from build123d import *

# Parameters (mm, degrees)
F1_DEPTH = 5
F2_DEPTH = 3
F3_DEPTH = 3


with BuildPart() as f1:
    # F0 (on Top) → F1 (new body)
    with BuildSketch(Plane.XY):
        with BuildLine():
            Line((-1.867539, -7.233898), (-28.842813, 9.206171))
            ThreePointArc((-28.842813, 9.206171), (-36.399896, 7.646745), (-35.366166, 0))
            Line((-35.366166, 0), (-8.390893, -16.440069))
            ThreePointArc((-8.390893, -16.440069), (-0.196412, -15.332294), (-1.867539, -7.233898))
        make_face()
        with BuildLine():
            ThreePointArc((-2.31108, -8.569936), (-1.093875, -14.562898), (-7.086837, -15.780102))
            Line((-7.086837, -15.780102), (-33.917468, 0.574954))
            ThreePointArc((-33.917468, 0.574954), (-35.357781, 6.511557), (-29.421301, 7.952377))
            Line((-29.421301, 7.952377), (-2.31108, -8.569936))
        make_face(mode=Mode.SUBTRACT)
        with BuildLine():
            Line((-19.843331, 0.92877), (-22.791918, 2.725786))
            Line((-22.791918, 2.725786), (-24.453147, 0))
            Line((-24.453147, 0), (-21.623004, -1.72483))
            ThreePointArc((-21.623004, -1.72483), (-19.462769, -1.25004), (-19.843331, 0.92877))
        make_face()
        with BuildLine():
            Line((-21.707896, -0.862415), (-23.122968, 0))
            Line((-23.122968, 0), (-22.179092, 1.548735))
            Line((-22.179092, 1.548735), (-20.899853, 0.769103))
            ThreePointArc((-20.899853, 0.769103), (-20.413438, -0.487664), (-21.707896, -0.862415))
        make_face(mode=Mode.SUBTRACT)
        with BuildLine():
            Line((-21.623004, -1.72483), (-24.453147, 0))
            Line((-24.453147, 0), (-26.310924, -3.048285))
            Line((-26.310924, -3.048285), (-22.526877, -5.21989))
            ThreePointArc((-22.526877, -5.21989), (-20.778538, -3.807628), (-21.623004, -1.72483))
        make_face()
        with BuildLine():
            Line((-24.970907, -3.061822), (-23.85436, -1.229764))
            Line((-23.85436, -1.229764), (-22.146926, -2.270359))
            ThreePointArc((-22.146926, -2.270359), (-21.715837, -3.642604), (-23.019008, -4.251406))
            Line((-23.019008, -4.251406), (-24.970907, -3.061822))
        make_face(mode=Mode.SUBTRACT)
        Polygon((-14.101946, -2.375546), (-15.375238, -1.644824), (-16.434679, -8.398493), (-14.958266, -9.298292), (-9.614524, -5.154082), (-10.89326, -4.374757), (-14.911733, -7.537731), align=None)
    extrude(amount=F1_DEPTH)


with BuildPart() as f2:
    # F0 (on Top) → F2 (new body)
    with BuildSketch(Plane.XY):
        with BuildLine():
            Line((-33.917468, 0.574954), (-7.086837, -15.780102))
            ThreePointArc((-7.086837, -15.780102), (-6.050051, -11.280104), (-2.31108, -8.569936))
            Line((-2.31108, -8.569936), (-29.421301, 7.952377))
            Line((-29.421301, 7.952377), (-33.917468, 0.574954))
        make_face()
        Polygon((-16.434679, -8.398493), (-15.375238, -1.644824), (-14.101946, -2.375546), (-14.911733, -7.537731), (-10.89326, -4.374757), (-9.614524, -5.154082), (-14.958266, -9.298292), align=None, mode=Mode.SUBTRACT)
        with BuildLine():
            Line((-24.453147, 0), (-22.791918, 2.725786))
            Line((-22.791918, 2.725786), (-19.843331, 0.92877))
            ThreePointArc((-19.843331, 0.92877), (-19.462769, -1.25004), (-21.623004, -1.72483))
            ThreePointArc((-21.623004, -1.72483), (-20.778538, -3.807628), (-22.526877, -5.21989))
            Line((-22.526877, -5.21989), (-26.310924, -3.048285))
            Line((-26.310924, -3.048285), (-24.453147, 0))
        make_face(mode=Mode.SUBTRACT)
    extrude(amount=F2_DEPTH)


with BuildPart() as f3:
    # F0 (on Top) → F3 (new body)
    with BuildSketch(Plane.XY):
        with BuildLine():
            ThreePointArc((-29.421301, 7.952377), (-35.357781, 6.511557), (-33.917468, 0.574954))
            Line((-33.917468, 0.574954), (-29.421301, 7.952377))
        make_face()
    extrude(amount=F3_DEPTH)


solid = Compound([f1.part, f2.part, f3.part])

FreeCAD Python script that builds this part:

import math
import FreeCAD as App
import Part
import Sketcher
from FreeCAD import Vector
Q = App.Units.Quantity

doc = App.newDocument("Part")
params = doc.addObject("Spreadsheet::Sheet", "Params")
for row, (alias, value) in enumerate([
    ("pad1_length", "5 mm"),
    ("pad2_length", "3 mm"),
    ("pad3_length", "3 mm"),
], start=1):
    params.set(f"A{row}", alias)
    params.set(f"B{row}", "=" + value)
    params.setAlias(f"B{row}", alias)

body = doc.addObject("PartDesign::Body", "Body")
body.AllowCompound = True

# Sketch on XY plane
sketch1 = body.newObject("Sketcher::SketchObject", "Sketch")
sketch1.AttachmentSupport = (doc.getObject("XY_Plane"), [""])
sketch1.MapMode = "FlatFace"
sketch1.addGeometry([
    Part.LineSegment(Vector(-1.867539, -7.233898, 0), Vector(-28.842813, 9.206171, 0)),  # 0
    Part.ArcOfCircle(Part.Circle(Vector(-31.785791, 4.37726, 0), Vector(0, 0, 1), 5.655042), math.radians(58.639796), math.radians(230.71859)),  # 1
    Part.LineSegment(Vector(-35.366166, 0, 0), Vector(-8.390893, -16.440069, 0)),  # 2
    Part.ArcOfCircle(Part.Circle(Vector(-4.810517, -12.062809, 0), Vector(0, 0, 1), 5.655042), math.radians(-129.281418), math.radians(58.639795)),  # 3
    Part.LineSegment(Vector(-29.421301, 7.952377, 0), Vector(-2.31108, -8.569936, 0)),  # 4
    Part.ArcOfCircle(Part.Circle(Vector(-4.698958, -12.175019, 0), Vector(0, 0, 1), 4.324186), math.radians(-123.519081), math.radians(56.480937)),  # 5
    Part.LineSegment(Vector(-7.086837, -15.780102, 0), Vector(-33.917468, 0.574954, 0)),  # 6
    Part.ArcOfCircle(Part.Circle(Vector(-31.669069, 4.263474, 0), Vector(0, 0, 1), 4.319777), math.radians(58.644694), math.radians(238.634908)),  # 7
    Part.LineSegment(Vector(-19.843331, 0.92877, 0), Vector(-22.791918, 2.725786, 0)),  # 8
    Part.LineSegment(Vector(-22.791918, 2.725786, 0), Vector(-24.453147, 0, 0)),  # 9
    Part.LineSegment(Vector(-24.453147, 0, 0), Vector(-26.310924, -3.048285, 0)),  # 10
    Part.LineSegment(Vector(-26.310924, -3.048285, 0), Vector(-22.526877, -5.21989, 0)),  # 11
    Part.ArcOfCircle(Part.Circle(Vector(-22.604561, -3.335393, 0), Vector(0, 0, 1), 1.886098), math.radians(-87.63946), math.radians(58.639797)),  # 12
    Part.ArcOfCircle(Part.Circle(Vector(-20.790821, -0.359364, 0), Vector(0, 0, 1), 1.59907), math.radians(-121.360207), math.radians(53.663567)),  # 13
    Part.LineSegment(Vector(-23.019008, -4.251406, 0), Vector(-24.970907, -3.061822, 0)),  # 14
    Part.LineSegment(Vector(-24.970907, -3.061822, 0), Vector(-23.85436, -1.229764, 0)),  # 15
    Part.LineSegment(Vector(-23.85436, -1.229764, 0), Vector(-22.146926, -2.270359, 0)),  # 16
    Part.ArcOfCircle(Part.Circle(Vector(-22.71514, -3.202698, 0), Vector(0, 0, 1), 1.091844), math.radians(-106.159191), math.radians(58.639785)),  # 17
    Part.ArcOfCircle(Part.Circle(Vector(-21.232328, -0.082091, 0), Vector(0, 0, 1), 0.913822), math.radians(-121.360182), math.radians(68.664453)),  # 18
    Part.LineSegment(Vector(-21.707896, -0.862415, 0), Vector(-23.122968, 0, 0)),  # 19
    Part.LineSegment(Vector(-23.122968, 0, 0), Vector(-22.179092, 1.548735, 0)),  # 20
    Part.LineSegment(Vector(-22.179092, 1.548735, 0), Vector(-20.899853, 0.769103, 0)),  # 21
    Part.LineSegment(Vector(-14.101946, -2.375546, 0), Vector(-15.375238, -1.644824, 0)),  # 22
    Part.LineSegment(Vector(-15.375238, -1.644824, 0), Vector(-16.434679, -8.398493, 0)),  # 23
    Part.LineSegment(Vector(-16.434679, -8.398493, 0), Vector(-14.958266, -9.298292, 0)),  # 24
    Part.LineSegment(Vector(-14.958266, -9.298292, 0), Vector(-9.614524, -5.154082, 0)),  # 25
    Part.LineSegment(Vector(-9.614524, -5.154082, 0), Vector(-10.89326, -4.374757, 0)),  # 26
    Part.LineSegment(Vector(-10.89326, -4.374757, 0), Vector(-14.911733, -7.537731, 0)),  # 27
    Part.LineSegment(Vector(-14.911733, -7.537731, 0), Vector(-14.101946, -2.375546, 0)),  # 28
], False)
sketch1.addConstraint([
    Sketcher.Constraint("Coincident", 0, 2, 1, 1),
    Sketcher.Constraint("Coincident", 1, 2, 2, 1),
    Sketcher.Constraint("Coincident", 2, 2, 3, 1),
    Sketcher.Constraint("Coincident", 3, 2, 0, 1),
    Sketcher.Constraint("Coincident", 4, 2, 5, 2),
    Sketcher.Constraint("Coincident", 5, 1, 6, 1),
    Sketcher.Constraint("Coincident", 6, 2, 7, 2),
    Sketcher.Constraint("Coincident", 7, 1, 4, 1),
    Sketcher.Constraint("Coincident", 8, 2, 9, 1),
    Sketcher.Constraint("Coincident", 9, 2, 10, 1),
    Sketcher.Constraint("Coincident", 10, 2, 11, 1),
    Sketcher.Constraint("Coincident", 11, 2, 12, 1),
    Sketcher.Constraint("Coincident", 12, 2, 13, 1),
    Sketcher.Constraint("Coincident", 13, 2, 8, 1),
    Sketcher.Constraint("Coincident", 14, 2, 15, 1),
    Sketcher.Constraint("Coincident", 15, 2, 16, 1),
    Sketcher.Constraint("Coincident", 16, 2, 17, 2),
    Sketcher.Constraint("Coincident", 17, 1, 14, 1),
    Sketcher.Constraint("Coincident", 18, 1, 19, 1),
    Sketcher.Constraint("Coincident", 19, 2, 20, 1),
    Sketcher.Constraint("Coincident", 20, 2, 21, 1),
    Sketcher.Constraint("Coincident", 21, 2, 18, 2),
    Sketcher.Constraint("Coincident", 22, 2, 23, 1),
    Sketcher.Constraint("Coincident", 23, 2, 24, 1),
    Sketcher.Constraint("Coincident", 24, 2, 25, 1),
    Sketcher.Constraint("Coincident", 25, 2, 26, 1),
    Sketcher.Constraint("Coincident", 26, 2, 27, 1),
    Sketcher.Constraint("Coincident", 27, 2, 28, 1),
    Sketcher.Constraint("Coincident", 28, 2, 22, 1),
    Sketcher.Constraint("PointOnObject", 1, 2, -1),
    Sketcher.Constraint("PointOnObject", 9, 2, -1),
    Sketcher.Constraint("PointOnObject", 19, 2, -1),
    Sketcher.Constraint("Radius", 1, Q("5.655042 mm")),
    Sketcher.Constraint("Radius", 3, Q("5.655042 mm")),
    Sketcher.Constraint("Radius", 13, Q("1.59907 mm")),
    Sketcher.Constraint("Radius", 18, Q("0.913822 mm")),
    Sketcher.Constraint("Radius", 5, Q("4.324186 mm")),
    Sketcher.Constraint("Radius", 7, Q("4.319777 mm")),
    Sketcher.Constraint("Radius", 12, Q("1.886098 mm")),
    Sketcher.Constraint("Radius", 17, Q("1.091844 mm")),
    Sketcher.Constraint("Distance", 11, Q("4.362898 mm")),
    Sketcher.Constraint("Distance", 25, Q("6.7624 mm")),
    Sketcher.Constraint("DistanceY", 17, 3, -1, 1, Q("3.202698 mm")),
    Sketcher.Constraint("DistanceY", 3, 2, -1, 1, Q("7.233898 mm")),
    Sketcher.Constraint("DistanceY", 5, 1, -1, 1, Q("15.780102 mm")),
    Sketcher.Constraint("DistanceX", 7, 1, -1, 1, Q("29.421301 mm")),
    Sketcher.Constraint("DistanceY", 12, 3, 18, 3, Q("3.253302 mm")),
    Sketcher.Constraint("DistanceX", 6, 2, 7, 3, Q("2.248399 mm")),
    Sketcher.Constraint("DistanceY", 11, 2, 18, 3, Q("5.137799 mm")),
    Sketcher.Constraint("DistanceY", 12, 2, 13, 2, Q("2.6536 mm")),
    Sketcher.Constraint("DistanceX", 15, 2, 12, 3, Q("1.249799 mm")),
    Sketcher.Constraint("DistanceX", 14, 2, 17, 1, Q("1.951899 mm")),
    Sketcher.Constraint("DistanceY", 13, 3, 20, 2, Q("1.908099 mm")),
    Sketcher.Constraint("DistanceY", 23, 2, 12, 3, Q("5.0631 mm")),
    Sketcher.Constraint("DistanceY", 24, 2, 23, 2, Q("0.899799 mm")),
    Sketcher.Constraint("Distance", 0, Q("31.590209 mm")),
    Sketcher.Constraint("Distance", 14, Q("2.28583 mm")),
    Sketcher.Constraint("Distance", 21, Q("1.498092 mm")),
    Sketcher.Constraint("Distance", 22, Q("1.468069 mm")),
    Sketcher.Constraint("Distance", 23, Q("6.836261 mm")),
    Sketcher.Constraint("DistanceX", 1, 3, -1, 1, Q("31.785791 mm")),
    Sketcher.Constraint("DistanceY", -1, 1, 1, 3, Q("4.37726 mm")),
    Sketcher.Constraint("DistanceY", 3, 3, -1, 1, Q("12.062809 mm")),
    Sketcher.Constraint("DistanceY", 5, 3, -1, 1, Q("12.175019 mm")),
    Sketcher.Constraint("DistanceX", 7, 3, -1, 1, Q("31.669069 mm")),
    Sketcher.Constraint("DistanceX", 12, 3, -1, 1, Q("22.604561 mm")),
    Sketcher.Constraint("DistanceX", 13, 3, -1, 1, Q("20.790821 mm")),
    Sketcher.Constraint("DistanceX", 17, 3, -1, 1, Q("22.71514 mm")),
    Sketcher.Constraint("DistanceX", 18, 3, -1, 1, Q("21.232328 mm")),
    Sketcher.Constraint("DistanceY", 18, 3, -1, 1, Q("0.082091 mm")),
    Sketcher.Constraint("DistanceY", -1, 1, 0, 2, Q("9.206171 mm")),
    Sketcher.Constraint("DistanceY", 2, 2, -1, 1, Q("16.440069 mm")),
    Sketcher.Constraint("DistanceX", 4, 2, -1, 1, Q("2.31108 mm")),
    Sketcher.Constraint("DistanceY", 12, 2, -1, 1, Q("1.72483 mm")),
    Sketcher.Constraint("DistanceY", 14, 2, -1, 1, Q("3.061822 mm")),
    Sketcher.Constraint("DistanceY", 16, 2, -1, 1, Q("2.270359 mm")),
    Sketcher.Constraint("DistanceX", 19, 2, -1, 1, Q("23.122968 mm")),
    Sketcher.Constraint("DistanceX", 23, 2, -1, 1, Q("16.434679 mm")),
    Sketcher.Constraint("DistanceY", 25, 2, -1, 1, Q("5.154082 mm")),
    Sketcher.Constraint("DistanceX", 26, 2, -1, 1, Q("10.89326 mm")),
    Sketcher.Constraint("DistanceY", 27, 2, -1, 1, Q("7.537731 mm")),
    Sketcher.Constraint("DistanceX", 3, 3, 5, 3, Q("0.111559 mm")),
    Sketcher.Constraint("DistanceY", 17, 3, 7, 3, Q("7.466172 mm")),
    Sketcher.Constraint("DistanceX", 8, 2, 18, 3, Q("1.55959 mm")),
    Sketcher.Constraint("DistanceY", 13, 3, 8, 2, Q("3.08515 mm")),
    Sketcher.Constraint("DistanceX", 9, 2, 8, 2, Q("1.661229 mm")),
    Sketcher.Constraint("DistanceY", 10, 2, 13, 3, Q("2.688921 mm")),
    Sketcher.Constraint("DistanceY", 12, 3, 15, 2, Q("2.105629 mm")),
    Sketcher.Constraint("DistanceX", 18, 1, 12, 2, Q("0.084892 mm")),
    Sketcher.Constraint("DistanceX", 20, 2, 13, 3, Q("1.388271 mm")),
    Sketcher.Constraint("DistanceY", 22, 2, 13, 3, Q("1.28546 mm")),
    Sketcher.Constraint("DistanceX", 22, 2, 24, 2, Q("0.416972 mm")),
    Sketcher.Constraint("DistanceY", 3, 2, 26, 2, Q("2.859141 mm")),
    Sketcher.Constraint("DistanceX", 27, 2, 25, 2, Q("5.297209 mm")),
    Sketcher.Constraint("DistanceX", 22, 2, 28, 2, Q("1.273292 mm")),
])
pad1 = body.newObject("PartDesign::Pad", "Pad")
pad1.Profile = sketch1
pad1.setExpression("Length", "Params.pad1_length")
body2 = doc.addObject("PartDesign::Body", "Body001")

# Sketch on XY plane
sketch2 = body2.newObject("Sketcher::SketchObject", "Sketch001")
sketch2.AttachmentSupport = (doc.getObject("XY_Plane001"), [""])
sketch2.MapMode = "FlatFace"
sketch2.addGeometry([
    Part.LineSegment(Vector(-33.9, 0.6, 0), Vector(-7.1, -15.8, 0)),  # 0
    Part.ArcOfCircle(Part.Circle(Vector(-0.6, -14.9, 0), Vector(0, 0, 1), 6.6), math.radians(105), math.radians(188)),  # 1
    Part.LineSegment(Vector(-2.3, -8.6, 0), Vector(-29.4, 8, 0)),  # 2
    Part.LineSegment(Vector(-29.4, 8, 0), Vector(-33.9, 0.6, 0)),  # 3
    Part.LineSegment(Vector(-15, -9.3, 0), Vector(-16.4, -8.4, 0)),  # 4
    Part.LineSegment(Vector(-16.4, -8.4, 0), Vector(-15.4, -1.6, 0)),  # 5
    Part.LineSegment(Vector(-15.4, -1.6, 0), Vector(-14.1, -2.4, 0)),  # 6
    Part.LineSegment(Vector(-14.1, -2.4, 0), Vector(-14.9, -7.5, 0)),  # 7
    Part.LineSegment(Vector(-14.9, -7.5, 0), Vector(-10.9, -4.4, 0)),  # 8
    Part.LineSegment(Vector(-10.9, -4.4, 0), Vector(-9.6, -5.2, 0)),  # 9
    Part.LineSegment(Vector(-9.6, -5.2, 0), Vector(-15, -9.3, 0)),  # 10
    Part.LineSegment(Vector(-26.3, -3, 0), Vector(-24.5, 0, 0)),  # 11
    Part.LineSegment(Vector(-24.5, 0, 0), Vector(-22.8, 2.7, 0)),  # 12
    Part.LineSegment(Vector(-22.8, 2.7, 0), Vector(-19.8, 0.9, 0)),  # 13
    Part.ArcOfCircle(Part.Circle(Vector(-20.8, -0.4, 0), Vector(0, 0, 1), 1.6), math.radians(-121), math.radians(54)),  # 14
    Part.ArcOfCircle(Part.Circle(Vector(-22.6, -3.3, 0), Vector(0, 0, 1), 1.9), math.radians(-88), math.radians(59)),  # 15
    Part.LineSegment(Vector(-22.5, -5.2, 0), Vector(-26.3, -3, 0)),  # 16
], False)
sketch2.addConstraint([
    Sketcher.Constraint("Coincident", 0, 2, 1, 2),
    Sketcher.Constraint("Coincident", 1, 1, 2, 1),
    Sketcher.Constraint("Coincident", 2, 2, 3, 1),
    Sketcher.Constraint("Coincident", 3, 2, 0, 1),
    Sketcher.Constraint("Coincident", 4, 2, 5, 1),
    Sketcher.Constraint("Coincident", 5, 2, 6, 1),
    Sketcher.Constraint("Coincident", 6, 2, 7, 1),
    Sketcher.Constraint("Coincident", 7, 2, 8, 1),
    Sketcher.Constraint("Coincident", 8, 2, 9, 1),
    Sketcher.Constraint("Coincident", 9, 2, 10, 1),
    Sketcher.Constraint("Coincident", 10, 2, 4, 1),
    Sketcher.Constraint("Coincident", 11, 2, 12, 1),
    Sketcher.Constraint("Coincident", 12, 2, 13, 1),
    Sketcher.Constraint("Coincident", 13, 2, 14, 2),
    Sketcher.Constraint("Tangent", 14, 1, 15, 2),
    Sketcher.Constraint("Coincident", 15, 1, 16, 1),
    Sketcher.Constraint("Coincident", 16, 2, 11, 1),
    Sketcher.Constraint("PointOnObject", 11, 2, -1),
    Sketcher.Constraint("Perpendicular", 2, 3),
    Sketcher.Constraint("Perpendicular", 3, 4),
    Sketcher.Constraint("Parallel", 5, 7),
    Sketcher.Constraint("Parallel", 4, 9),
    Sketcher.Constraint("Perpendicular", 9, 11),
    Sketcher.Constraint("Parallel", 11, 12),
    Sketcher.Constraint("Perpendicular", 12, 13),
    Sketcher.Constraint("Parallel", 6, 16),
    Sketcher.Constraint("Radius", 1, Q("6.579352 mm")),
    Sketcher.Constraint("Radius", 14, Q("1.59907 mm")),
    Sketcher.Constraint("Radius", 15, Q("1.886098 mm")),
    Sketcher.Constraint("Distance", 10, Q("6.7624 mm")),
    Sketcher.Constraint("Distance", 16, Q("4.362898 mm")),
    Sketcher.Constraint("DistanceX", 2, 2, -1, 1, Q("29.421301 mm")),
    Sketcher.Constraint("DistanceY", 4, 2, 15, 3, Q("5.0631 mm")),
    Sketcher.Constraint("DistanceX", 4, 2, 1, 1, Q("14.123599 mm")),
    Sketcher.Constraint("DistanceX", 5, 2, 0, 2, Q("8.288401 mm")),
    Sketcher.Constraint("DistanceY", 10, 2, 4, 2, Q("0.899799 mm")),
    Sketcher.Constraint("DistanceY", 14, 1, 13, 2, Q("2.6536 mm")),
    Sketcher.Constraint("Distance", 5, Q("6.836261 mm")),
    Sketcher.Constraint("Distance", 6, Q("1.468069 mm")),
    Sketcher.Constraint("DistanceX", 1, 3, -1, 1, Q("0.564832 mm")),
    Sketcher.Constraint("DistanceX", 14, 3, -1, 1, Q("20.790821 mm")),
    Sketcher.Constraint("DistanceX", 15, 3, -1, 1, Q("22.604561 mm")),
    Sketcher.Constraint("DistanceX", 1, 1, -1, 1, Q("2.31108 mm")),
    Sketcher.Constraint("DistanceY", 7, 2, -1, 1, Q("7.537731 mm")),
    Sketcher.Constraint("DistanceX", 8, 2, -1, 1, Q("10.89326 mm")),
    Sketcher.Constraint("DistanceY", 9, 2, -1, 1, Q("5.154082 mm")),
    Sketcher.Constraint("DistanceY", -1, 1, 13, 2, Q("0.92877 mm")),
    Sketcher.Constraint("DistanceY", 15, 1, -1, 1, Q("5.21989 mm")),
    Sketcher.Constraint("DistanceY", 0, 2, 15, 3, Q("12.444709 mm")),
    Sketcher.Constraint("DistanceY", 14, 3, 2, 2, Q("8.311741 mm")),
    Sketcher.Constraint("DistanceX", 3, 2, 0, 2, Q("26.830631 mm")),
    Sketcher.Constraint("DistanceX", 3, 2, 1, 1, Q("31.606388 mm")),
    Sketcher.Constraint("DistanceX", 5, 2, 6, 2, Q("1.273292 mm")),
])
pad2 = body2.newObject("PartDesign::Pad", "Pad001")
pad2.Profile = sketch2
pad2.setExpression("Length", "Params.pad2_length")
body3 = doc.addObject("PartDesign::Body", "Body002")

# Sketch on XY plane
sketch3 = body3.newObject("Sketcher::SketchObject", "Sketch002")
sketch3.AttachmentSupport = (doc.getObject("XY_Plane002"), [""])
sketch3.MapMode = "FlatFace"
sketch3.addGeometry([
    Part.ArcOfCircle(Part.Circle(Vector(-31.7, 4.3, 0), Vector(0, 0, 1), 4.3), math.radians(59), math.radians(239)),
    Part.LineSegment(Vector(-33.9, 0.6, 0), Vector(-29.4, 8, 0)),
], False)
sketch3.addConstraint([
    Sketcher.Constraint("Coincident", 0, 1, 1, 2),
    Sketcher.Constraint("Coincident", 1, 1, 0, 2),
    Sketcher.Constraint("Radius", 0, Q("4.319777 mm")),
    Sketcher.Constraint("DistanceX", 0, 1, -1, 1, Q("29.421301 mm")),
    Sketcher.Constraint("DistanceX", 1, 1, 0, 3, Q("2.248399 mm")),
    Sketcher.Constraint("DistanceX", 0, 3, -1, 1, Q("31.669069 mm")),
    Sketcher.Constraint("DistanceY", -1, 1, 0, 3, Q("4.263474 mm")),
])
pad3 = body3.newObject("PartDesign::Pad", "Pad002")
pad3.Profile = sketch3
pad3.setExpression("Length", "Params.pad3_length")

doc.recompute()
